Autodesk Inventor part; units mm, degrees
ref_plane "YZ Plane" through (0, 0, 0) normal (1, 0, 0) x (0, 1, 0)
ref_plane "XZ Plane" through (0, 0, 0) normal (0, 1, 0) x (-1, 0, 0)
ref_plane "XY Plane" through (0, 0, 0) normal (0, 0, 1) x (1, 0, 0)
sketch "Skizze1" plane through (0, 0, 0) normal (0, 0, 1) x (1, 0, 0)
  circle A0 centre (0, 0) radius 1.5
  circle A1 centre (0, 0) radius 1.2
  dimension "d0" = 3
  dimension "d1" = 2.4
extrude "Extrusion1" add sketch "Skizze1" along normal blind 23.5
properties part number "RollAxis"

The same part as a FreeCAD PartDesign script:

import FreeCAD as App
import Part
import Sketcher

doc = App.newDocument("Part")
params = doc.addObject("Spreadsheet::Sheet", "Params")
for row, (alias, value) in enumerate([
    ("sketch1_diameter", "3 mm"),
    ("sketch1_diameter2", "2.4 mm"),
    ("pad1_length", "23.5 mm"),
], start=1):
    params.set(f"A{row}", alias)
    params.set(f"B{row}", "=" + value)
    params.setAlias(f"B{row}", alias)

body = doc.addObject("PartDesign::Body", "Body")

# Sketch on XY plane
sketch1 = body.newObject("Sketcher::SketchObject", "Sketch")
sketch1.AttachmentSupport = (doc.getObject("XY_Plane"), [""])
sketch1.MapMode = "FlatFace"
sketch1.addGeometry([
    Part.Circle(App.Vector(0, 0, 0), App.Vector(0, 0, 1), 1.5),
    Part.Circle(App.Vector(0, 0, 0), App.Vector(0, 0, 1), 1.2),
], False)
sketch1.addConstraint([
    Sketcher.Constraint("Coincident", 0, 3, -1, 1),
    Sketcher.Constraint("Coincident", 1, 3, -1, 1),
    Sketcher.Constraint("Diameter", 0, 3.0),
    Sketcher.Constraint("Diameter", 1, 2.4),
])
sketch1.setExpression("Constraints[2]", "Params.sketch1_diameter")
sketch1.setExpression("Constraints[3]", "Params.sketch1_diameter2")
pad1 = body.newObject("PartDesign::Pad", "Pad")
pad1.Profile = sketch1
pad1.setExpression("Length", "Params.pad1_length")

doc.recompute()
